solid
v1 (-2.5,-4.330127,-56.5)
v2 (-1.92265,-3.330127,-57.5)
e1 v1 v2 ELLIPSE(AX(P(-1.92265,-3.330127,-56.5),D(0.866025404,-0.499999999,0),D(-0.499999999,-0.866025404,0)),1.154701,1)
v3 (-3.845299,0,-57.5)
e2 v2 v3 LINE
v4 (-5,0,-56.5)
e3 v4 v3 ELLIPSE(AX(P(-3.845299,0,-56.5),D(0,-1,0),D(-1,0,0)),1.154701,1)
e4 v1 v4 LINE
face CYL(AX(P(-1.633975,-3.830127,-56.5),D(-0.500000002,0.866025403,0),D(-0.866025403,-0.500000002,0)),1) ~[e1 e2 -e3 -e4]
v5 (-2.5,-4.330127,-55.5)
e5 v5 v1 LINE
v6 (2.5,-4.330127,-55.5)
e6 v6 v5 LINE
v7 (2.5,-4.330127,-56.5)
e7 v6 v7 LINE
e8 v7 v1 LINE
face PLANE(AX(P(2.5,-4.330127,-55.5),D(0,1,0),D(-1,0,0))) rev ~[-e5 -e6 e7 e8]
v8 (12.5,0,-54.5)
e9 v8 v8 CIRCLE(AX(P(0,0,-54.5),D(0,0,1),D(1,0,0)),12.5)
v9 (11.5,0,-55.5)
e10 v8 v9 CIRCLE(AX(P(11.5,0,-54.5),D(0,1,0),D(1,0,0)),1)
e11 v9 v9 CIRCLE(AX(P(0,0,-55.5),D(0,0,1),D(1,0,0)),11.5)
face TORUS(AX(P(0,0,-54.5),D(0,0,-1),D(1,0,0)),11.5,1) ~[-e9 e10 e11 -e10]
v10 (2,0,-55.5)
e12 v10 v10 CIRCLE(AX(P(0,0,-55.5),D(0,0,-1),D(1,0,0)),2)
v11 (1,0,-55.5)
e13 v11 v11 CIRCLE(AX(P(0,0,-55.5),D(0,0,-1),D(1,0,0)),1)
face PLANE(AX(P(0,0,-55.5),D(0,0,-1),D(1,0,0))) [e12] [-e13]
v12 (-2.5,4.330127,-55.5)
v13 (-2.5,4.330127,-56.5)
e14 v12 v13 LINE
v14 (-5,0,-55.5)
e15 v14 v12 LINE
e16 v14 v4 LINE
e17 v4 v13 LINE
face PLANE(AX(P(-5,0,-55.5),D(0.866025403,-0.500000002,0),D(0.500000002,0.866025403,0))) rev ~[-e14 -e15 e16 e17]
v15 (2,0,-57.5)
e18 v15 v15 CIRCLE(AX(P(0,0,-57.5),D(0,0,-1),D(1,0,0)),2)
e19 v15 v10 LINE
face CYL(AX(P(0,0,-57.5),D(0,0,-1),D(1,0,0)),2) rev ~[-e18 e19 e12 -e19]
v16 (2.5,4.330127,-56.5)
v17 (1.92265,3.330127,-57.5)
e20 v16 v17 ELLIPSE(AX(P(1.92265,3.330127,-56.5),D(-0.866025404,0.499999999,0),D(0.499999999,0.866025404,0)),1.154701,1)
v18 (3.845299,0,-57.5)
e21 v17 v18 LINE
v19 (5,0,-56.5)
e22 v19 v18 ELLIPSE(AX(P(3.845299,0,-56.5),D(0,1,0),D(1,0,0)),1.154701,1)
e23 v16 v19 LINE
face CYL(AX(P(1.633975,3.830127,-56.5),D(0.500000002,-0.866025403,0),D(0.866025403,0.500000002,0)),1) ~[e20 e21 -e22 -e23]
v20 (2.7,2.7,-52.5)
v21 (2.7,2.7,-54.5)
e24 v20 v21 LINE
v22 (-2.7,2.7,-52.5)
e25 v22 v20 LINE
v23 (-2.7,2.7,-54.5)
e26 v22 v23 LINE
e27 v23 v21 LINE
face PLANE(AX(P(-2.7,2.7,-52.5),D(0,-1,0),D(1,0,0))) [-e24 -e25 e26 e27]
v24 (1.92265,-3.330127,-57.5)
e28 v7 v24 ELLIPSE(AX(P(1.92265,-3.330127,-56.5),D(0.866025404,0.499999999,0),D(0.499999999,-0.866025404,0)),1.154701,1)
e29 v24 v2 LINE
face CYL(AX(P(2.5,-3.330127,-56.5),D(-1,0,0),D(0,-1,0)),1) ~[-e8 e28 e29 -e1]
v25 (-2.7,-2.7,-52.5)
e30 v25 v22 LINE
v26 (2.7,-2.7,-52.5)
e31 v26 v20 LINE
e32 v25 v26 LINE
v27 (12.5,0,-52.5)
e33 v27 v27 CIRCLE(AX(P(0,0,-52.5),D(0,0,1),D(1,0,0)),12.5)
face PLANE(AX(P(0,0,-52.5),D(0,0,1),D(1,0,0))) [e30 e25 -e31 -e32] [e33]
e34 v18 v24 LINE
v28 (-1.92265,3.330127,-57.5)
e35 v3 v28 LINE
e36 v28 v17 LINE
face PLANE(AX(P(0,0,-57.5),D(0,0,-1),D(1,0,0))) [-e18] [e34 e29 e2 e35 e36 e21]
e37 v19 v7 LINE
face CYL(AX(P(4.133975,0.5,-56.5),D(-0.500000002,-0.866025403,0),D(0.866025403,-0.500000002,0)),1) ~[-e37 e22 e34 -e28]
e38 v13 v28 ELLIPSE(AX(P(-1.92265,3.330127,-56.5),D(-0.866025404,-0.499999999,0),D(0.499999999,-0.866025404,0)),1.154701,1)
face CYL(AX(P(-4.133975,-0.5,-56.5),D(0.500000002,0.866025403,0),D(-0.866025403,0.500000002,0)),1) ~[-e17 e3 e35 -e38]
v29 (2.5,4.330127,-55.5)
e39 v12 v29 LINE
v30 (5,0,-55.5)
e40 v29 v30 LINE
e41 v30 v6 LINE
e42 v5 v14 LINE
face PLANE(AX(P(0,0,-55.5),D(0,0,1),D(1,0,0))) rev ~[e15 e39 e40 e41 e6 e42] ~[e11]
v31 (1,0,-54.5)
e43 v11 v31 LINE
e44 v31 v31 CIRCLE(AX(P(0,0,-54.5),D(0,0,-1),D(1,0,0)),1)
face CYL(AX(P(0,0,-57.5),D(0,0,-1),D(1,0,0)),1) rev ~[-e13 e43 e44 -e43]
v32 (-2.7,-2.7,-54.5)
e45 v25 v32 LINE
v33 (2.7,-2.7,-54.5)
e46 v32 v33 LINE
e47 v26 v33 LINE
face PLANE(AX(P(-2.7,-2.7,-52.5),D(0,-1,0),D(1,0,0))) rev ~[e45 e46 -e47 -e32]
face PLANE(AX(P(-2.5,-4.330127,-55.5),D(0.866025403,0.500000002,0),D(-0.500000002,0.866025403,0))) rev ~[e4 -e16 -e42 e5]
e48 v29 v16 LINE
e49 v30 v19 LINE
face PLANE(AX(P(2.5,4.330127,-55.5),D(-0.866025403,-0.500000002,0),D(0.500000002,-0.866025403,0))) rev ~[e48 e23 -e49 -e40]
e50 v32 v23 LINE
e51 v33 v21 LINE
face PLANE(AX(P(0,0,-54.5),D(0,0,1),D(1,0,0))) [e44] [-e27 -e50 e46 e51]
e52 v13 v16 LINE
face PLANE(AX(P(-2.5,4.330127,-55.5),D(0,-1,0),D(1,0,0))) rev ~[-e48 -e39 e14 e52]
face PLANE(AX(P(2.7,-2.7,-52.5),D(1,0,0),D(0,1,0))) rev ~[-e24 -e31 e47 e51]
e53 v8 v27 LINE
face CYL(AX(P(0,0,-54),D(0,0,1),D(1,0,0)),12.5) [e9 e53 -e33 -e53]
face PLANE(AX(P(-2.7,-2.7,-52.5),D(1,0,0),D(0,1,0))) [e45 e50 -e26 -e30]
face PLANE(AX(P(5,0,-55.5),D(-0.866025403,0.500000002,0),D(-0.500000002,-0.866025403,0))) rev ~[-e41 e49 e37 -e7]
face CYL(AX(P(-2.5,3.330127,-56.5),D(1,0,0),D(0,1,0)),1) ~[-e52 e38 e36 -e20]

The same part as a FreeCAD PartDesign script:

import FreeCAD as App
import Part
import Sketcher
Q = App.Units.Quantity


def edges_at(feature, points):
    """Names of the edges that pass closest to the given points."""
    edges = feature.Shape.Edges
    near = lambda p: min(range(len(edges)), key=lambda i: edges[i].distToShape(Part.Vertex(*p))[0])
    return sorted({f"Edge{near(p) + 1}" for p in points})


def add_polygon(sketch, points):
    """Adds a closed chain of lines whose ends are joined by coincident constraints."""
    first, n = sketch.GeometryCount, len(points)
    for a, b in zip(points, points[1:] + points[:1]):
        sketch.addGeometry(Part.LineSegment(App.Vector(*a, 0), App.Vector(*b, 0)), False)
    for i in range(n):
        sketch.addConstraint(Sketcher.Constraint("Coincident", first + i, 2, first + (i + 1) % n, 1))

doc = App.newDocument("Part")
params = doc.addObject("Spreadsheet::Sheet", "Params")
for row, (alias, value) in enumerate([
    ("sketch1_diameter", "25 mm"),
    ("pad1_length", "3 mm"),
    ("sketch2_width", "5.4 mm"),
    ("pocket1_length", "2 mm"),
    ("sketch3_width", "5 mm"),
    ("sketch3_length", "5 mm"),
    ("pad2_length", "2 mm"),
    ("sketch4_diameter", "2 mm"),
    ("sketch5_diameter", "4 mm"),
    ("pocket3_length", "2 mm"),
    ("fillet_radius", "1 mm"),
], start=1):
    params.set(f"A{row}", alias)
    params.set(f"B{row}", "=" + value)
    params.setAlias(f"B{row}", alias)

body = doc.addObject("PartDesign::Body", "Body")

sketch1 = body.newObject("Sketcher::SketchObject", "Sketch")
sketch1.AttachmentSupport = (doc.getObject("XY_Plane"), [""])
sketch1.MapMode = "FlatFace"
sketch1.AttachmentOffset = App.Placement(App.Vector(0, 0, -54), App.Rotation())
sketch1.addGeometry(Part.Circle(App.Vector(0, 0, 0), App.Vector(0, 0, 1), 12.5), False)
sketch1.addConstraint([
    Sketcher.Constraint("Coincident", 0, 3, -1, 1),
    Sketcher.Constraint("Diameter", 0, Q("25 mm")),
])
sketch1.setExpression("Constraints[1]", "Params.sketch1_diameter")
pad1 = body.newObject("PartDesign::Pad", "Pad")
pad1.Profile = sketch1
pad1.setExpression("Length", "Params.pad1_length")
pad1.Midplane = True

sketch2 = body.newObject("Sketcher::SketchObject", "Sketch001")
sketch2.AttachmentSupport = (doc.getObject("XY_Plane"), [""])
sketch2.MapMode = "FlatFace"
sketch2.AttachmentOffset = App.Placement(App.Vector(0, 0, -52.5), App.Rotation())
add_polygon(sketch2, [(-2.7, 2.7), (-2.7, -2.7), (2.7, -2.7), (2.7, 2.7)])
sketch2.addConstraint([
    Sketcher.Constraint("Vertical", 0),
    Sketcher.Constraint("Horizontal", 1),
    Sketcher.Constraint("Vertical", 2),
    Sketcher.Constraint("Horizontal", 3),
    Sketcher.Constraint("Symmetric", 0, 2, 2, 2, -1, 1),
    Sketcher.Constraint("Equal", 3, 0),
    Sketcher.Constraint("DistanceX", 1, 1, 1, 2, Q("5.4 mm")),
])
sketch2.setExpression("Constraints[10]", "Params.sketch2_width")
pocket1 = body.newObject("PartDesign::Pocket", "Pocket")
pocket1.Profile = sketch2
pocket1.setExpression("Length", "Params.pocket1_length")

sketch3 = body.newObject("Sketcher::SketchObject", "Sketch002")
sketch3.AttachmentSupport = (doc.getObject("XY_Plane"), [""])
sketch3.MapMode = "FlatFace"
sketch3.AttachmentOffset = App.Placement(App.Vector(0, 0, -55.5), App.Rotation())
add_polygon(sketch3, [(5, 0), (2.5, -4.330127), (-2.5, -4.330127), (-5, 0), (-2.5, 4.330127), (2.5, 4.330127)])
sketch3.addConstraint([
    Sketcher.Constraint("Horizontal", 1),
    Sketcher.Constraint("Horizontal", 4),
    Sketcher.Constraint("Symmetric", 0, 2, 3, 2, -1, 1),
    Sketcher.Constraint("Symmetric", 2, 2, 5, 2, -1, 1),
    Sketcher.Constraint("PointOnObject", 2, 2, -1),
    Sketcher.Constraint("Parallel", 2, 5),
    Sketcher.Constraint("Vertical", 1, 2, 3, 2),
    Sketcher.Constraint("DistanceX", 1, 2, 1, 1, Q("5 mm")),
    Sketcher.Constraint("Angle", 0, Q("-120 deg")),
    Sketcher.Constraint("Distance", 0, Q("5 mm")),
])
sketch3.setExpression("Constraints[13]", "Params.sketch3_width")
sketch3.setExpression("Constraints[15]", "Params.sketch3_length")
pad2 = body.newObject("PartDesign::Pad", "Pad001")
pad2.Profile = sketch3
pad2.setExpression("Length", "Params.pad2_length")
pad2.Reversed = True

sketch4 = body.newObject("Sketcher::SketchObject", "Sketch003")
sketch4.AttachmentSupport = (doc.getObject("XY_Plane"), [""])
sketch4.MapMode = "FlatFace"
sketch4.AttachmentOffset = App.Placement(App.Vector(0, 0, -57.5), App.Rotation())
sketch4.addGeometry(Part.Circle(App.Vector(0, 0, 0), App.Vector(0, 0, 1), 1), False)
sketch4.addConstraint([
    Sketcher.Constraint("Coincident", 0, 3, -1, 1),
    Sketcher.Constraint("Diameter", 0, Q("2 mm")),
])
sketch4.setExpression("Constraints[1]", "Params.sketch4_diameter")
pocket2 = body.newObject("PartDesign::Pocket", "Pocket001")
pocket2.Profile = sketch4
pocket2.Type = "ThroughAll"
pocket2.Reversed = True

sketch5 = body.newObject("Sketcher::SketchObject", "Sketch004")
sketch5.AttachmentSupport = (doc.getObject("XY_Plane"), [""])
sketch5.MapMode = "FlatFace"
sketch5.AttachmentOffset = App.Placement(App.Vector(0, 0, -57.5), App.Rotation())
sketch5.addGeometry(Part.Circle(App.Vector(0, 0, 0), App.Vector(0, 0, 1), 2), False)
sketch5.addConstraint([
    Sketcher.Constraint("Coincident", 0, 3, -1, 1),
    Sketcher.Constraint("Diameter", 0, Q("4 mm")),
])
sketch5.setExpression("Constraints[1]", "Params.sketch5_diameter")
pocket3 = body.newObject("PartDesign::Pocket", "Pocket002")
pocket3.Profile = sketch5
pocket3.setExpression("Length", "Params.pocket3_length")
pocket3.Reversed = True
doc.recompute()

fillet = body.newObject("PartDesign::Fillet", "Fillet")
fillet.Base = (pocket3, edges_at(pocket3, [
    (-12.5, 0, -55.5),
    (0, 4.33, -57.5),
    (3.75, 2.165, -57.5),
    (3.75, -2.165, -57.5),
    (0, -4.33, -57.5),
    (-3.75, -2.165, -57.5),
    (-3.75, 2.165, -57.5),
]))
fillet.setExpression("Radius", "Params.fillet_radius")

doc.recompute()
